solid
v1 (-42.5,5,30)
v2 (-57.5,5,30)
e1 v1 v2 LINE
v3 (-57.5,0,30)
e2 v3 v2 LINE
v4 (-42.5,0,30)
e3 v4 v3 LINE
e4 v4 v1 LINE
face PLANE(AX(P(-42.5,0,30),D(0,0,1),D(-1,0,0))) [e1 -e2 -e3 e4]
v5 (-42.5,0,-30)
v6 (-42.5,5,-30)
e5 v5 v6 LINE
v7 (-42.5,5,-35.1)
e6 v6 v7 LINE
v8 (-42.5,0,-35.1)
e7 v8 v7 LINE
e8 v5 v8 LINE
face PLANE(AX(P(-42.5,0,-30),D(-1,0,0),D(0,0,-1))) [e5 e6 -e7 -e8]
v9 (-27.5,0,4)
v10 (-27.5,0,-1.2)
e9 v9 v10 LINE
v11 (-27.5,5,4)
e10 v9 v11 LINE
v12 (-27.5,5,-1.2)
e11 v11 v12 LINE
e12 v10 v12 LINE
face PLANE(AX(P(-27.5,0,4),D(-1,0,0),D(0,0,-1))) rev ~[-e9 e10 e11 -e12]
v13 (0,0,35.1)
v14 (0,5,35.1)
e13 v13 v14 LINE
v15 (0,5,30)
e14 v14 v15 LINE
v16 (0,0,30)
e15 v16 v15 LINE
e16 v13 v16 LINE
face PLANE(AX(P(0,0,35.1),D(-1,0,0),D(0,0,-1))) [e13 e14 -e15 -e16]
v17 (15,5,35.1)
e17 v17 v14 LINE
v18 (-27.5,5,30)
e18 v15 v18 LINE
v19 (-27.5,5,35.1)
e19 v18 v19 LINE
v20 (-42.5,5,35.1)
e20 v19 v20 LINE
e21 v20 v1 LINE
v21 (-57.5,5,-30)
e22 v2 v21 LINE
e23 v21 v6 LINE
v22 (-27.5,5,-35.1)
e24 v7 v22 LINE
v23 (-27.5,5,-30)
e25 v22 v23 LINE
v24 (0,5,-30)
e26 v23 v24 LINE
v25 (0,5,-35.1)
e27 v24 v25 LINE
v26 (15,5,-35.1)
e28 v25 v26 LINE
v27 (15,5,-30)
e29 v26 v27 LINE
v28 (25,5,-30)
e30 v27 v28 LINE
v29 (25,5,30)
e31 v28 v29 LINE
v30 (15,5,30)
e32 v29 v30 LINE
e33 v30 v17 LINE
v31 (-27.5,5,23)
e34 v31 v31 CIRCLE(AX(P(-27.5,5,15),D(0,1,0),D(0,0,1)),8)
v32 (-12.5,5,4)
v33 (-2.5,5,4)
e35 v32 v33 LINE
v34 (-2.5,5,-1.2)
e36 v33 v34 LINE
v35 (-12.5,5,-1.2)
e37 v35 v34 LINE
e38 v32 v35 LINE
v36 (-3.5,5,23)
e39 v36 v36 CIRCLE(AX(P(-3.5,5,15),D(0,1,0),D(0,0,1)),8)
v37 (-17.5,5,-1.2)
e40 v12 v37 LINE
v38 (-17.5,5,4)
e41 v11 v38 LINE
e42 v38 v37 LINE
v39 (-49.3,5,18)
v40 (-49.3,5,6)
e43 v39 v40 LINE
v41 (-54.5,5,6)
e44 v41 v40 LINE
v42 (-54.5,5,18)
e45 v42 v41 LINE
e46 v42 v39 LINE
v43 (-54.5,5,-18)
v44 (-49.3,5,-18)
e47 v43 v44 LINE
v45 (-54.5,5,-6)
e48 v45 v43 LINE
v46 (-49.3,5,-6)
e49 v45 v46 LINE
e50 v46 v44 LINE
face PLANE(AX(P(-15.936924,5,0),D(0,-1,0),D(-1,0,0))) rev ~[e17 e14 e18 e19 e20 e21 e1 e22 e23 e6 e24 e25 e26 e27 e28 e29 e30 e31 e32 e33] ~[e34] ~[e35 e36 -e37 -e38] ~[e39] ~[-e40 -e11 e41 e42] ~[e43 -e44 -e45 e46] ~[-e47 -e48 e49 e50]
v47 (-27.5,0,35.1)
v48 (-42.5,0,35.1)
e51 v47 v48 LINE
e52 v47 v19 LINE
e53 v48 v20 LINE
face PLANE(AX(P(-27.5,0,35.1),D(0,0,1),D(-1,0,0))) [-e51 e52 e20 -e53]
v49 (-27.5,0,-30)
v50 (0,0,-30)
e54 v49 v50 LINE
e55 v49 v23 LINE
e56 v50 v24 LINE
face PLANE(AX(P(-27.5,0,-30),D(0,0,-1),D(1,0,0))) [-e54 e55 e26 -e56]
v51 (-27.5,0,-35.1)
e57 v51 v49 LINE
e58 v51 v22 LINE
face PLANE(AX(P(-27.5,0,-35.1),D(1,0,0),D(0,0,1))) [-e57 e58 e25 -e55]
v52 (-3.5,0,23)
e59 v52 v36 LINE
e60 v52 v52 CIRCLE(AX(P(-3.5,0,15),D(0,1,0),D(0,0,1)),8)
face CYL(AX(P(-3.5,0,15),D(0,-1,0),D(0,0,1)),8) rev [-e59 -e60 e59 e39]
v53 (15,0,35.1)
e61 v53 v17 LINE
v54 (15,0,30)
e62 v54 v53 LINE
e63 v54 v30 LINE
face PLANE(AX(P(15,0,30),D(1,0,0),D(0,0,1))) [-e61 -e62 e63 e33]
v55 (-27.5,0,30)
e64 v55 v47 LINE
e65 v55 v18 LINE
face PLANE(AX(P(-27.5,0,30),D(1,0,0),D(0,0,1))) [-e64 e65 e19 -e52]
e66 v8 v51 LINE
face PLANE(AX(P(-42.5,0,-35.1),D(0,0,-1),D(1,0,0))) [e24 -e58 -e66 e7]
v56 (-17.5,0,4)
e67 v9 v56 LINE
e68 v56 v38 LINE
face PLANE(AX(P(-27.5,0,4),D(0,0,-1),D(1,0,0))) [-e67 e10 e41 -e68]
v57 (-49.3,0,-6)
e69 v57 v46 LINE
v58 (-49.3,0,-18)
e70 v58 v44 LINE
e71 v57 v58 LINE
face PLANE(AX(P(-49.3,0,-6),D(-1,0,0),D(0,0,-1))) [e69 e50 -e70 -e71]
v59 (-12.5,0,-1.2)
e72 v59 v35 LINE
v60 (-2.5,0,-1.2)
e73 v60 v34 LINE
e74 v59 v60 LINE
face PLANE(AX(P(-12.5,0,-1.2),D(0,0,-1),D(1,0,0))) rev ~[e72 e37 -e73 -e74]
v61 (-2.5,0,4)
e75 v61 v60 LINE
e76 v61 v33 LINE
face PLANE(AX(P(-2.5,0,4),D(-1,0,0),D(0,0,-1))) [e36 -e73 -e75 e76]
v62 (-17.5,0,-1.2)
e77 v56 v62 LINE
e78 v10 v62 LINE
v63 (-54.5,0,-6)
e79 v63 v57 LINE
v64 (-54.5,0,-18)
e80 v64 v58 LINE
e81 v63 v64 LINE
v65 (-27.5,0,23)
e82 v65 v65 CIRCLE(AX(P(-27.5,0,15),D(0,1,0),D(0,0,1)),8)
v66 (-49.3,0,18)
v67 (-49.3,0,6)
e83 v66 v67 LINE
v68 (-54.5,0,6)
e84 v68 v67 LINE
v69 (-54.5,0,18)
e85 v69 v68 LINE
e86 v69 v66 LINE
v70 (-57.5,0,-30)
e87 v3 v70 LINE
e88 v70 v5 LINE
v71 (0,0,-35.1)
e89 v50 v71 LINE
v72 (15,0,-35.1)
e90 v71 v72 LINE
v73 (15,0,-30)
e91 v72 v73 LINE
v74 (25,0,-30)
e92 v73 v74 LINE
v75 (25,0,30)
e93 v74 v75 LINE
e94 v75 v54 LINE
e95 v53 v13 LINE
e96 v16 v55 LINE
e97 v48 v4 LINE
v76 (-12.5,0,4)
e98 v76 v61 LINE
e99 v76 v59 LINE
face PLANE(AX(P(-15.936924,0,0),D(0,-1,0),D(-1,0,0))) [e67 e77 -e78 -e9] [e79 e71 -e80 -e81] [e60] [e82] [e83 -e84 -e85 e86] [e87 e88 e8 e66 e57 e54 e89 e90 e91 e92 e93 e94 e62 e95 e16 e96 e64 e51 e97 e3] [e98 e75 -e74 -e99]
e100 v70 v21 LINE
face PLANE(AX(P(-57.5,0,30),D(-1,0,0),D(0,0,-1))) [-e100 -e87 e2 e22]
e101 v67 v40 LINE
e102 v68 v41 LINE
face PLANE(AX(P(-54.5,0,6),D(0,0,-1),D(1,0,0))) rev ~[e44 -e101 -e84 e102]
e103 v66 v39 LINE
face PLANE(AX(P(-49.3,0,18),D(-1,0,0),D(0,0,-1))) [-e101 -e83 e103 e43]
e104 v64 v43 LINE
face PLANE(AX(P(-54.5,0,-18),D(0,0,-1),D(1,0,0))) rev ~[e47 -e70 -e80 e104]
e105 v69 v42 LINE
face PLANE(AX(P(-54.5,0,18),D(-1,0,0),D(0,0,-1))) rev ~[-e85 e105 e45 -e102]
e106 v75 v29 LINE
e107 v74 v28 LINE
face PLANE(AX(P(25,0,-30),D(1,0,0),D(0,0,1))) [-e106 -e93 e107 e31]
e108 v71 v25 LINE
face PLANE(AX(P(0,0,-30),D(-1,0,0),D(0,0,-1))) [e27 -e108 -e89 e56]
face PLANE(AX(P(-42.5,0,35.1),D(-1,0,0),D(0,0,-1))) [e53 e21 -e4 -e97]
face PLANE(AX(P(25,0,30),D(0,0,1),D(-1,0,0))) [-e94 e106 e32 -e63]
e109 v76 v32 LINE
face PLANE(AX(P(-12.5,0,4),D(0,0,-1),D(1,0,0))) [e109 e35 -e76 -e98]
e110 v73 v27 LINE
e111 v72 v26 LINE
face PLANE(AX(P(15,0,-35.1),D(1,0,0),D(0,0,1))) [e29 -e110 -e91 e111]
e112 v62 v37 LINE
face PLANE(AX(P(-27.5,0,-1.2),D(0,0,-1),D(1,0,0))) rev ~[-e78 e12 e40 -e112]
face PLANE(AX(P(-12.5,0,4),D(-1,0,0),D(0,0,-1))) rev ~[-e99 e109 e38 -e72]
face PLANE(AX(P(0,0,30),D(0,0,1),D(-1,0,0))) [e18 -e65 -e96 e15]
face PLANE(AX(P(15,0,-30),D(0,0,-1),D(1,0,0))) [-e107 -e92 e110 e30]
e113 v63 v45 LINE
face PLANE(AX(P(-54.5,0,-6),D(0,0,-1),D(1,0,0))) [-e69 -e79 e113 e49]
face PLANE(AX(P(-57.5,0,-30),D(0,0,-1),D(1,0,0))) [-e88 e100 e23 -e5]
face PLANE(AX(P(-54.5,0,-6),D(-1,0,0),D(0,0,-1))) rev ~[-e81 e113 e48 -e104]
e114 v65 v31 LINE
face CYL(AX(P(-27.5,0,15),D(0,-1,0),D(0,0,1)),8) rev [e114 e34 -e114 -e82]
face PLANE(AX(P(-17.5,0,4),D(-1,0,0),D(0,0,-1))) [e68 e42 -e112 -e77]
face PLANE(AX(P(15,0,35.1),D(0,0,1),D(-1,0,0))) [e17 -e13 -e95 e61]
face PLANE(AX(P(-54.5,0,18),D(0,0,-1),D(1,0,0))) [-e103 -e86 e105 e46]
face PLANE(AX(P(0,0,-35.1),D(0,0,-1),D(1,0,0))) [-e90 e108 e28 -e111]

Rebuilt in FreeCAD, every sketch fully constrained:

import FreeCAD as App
import Part
import Sketcher
from FreeCAD import Vector
Q = App.Units.Quantity

doc = App.newDocument("Part")
params = doc.addObject("Spreadsheet::Sheet", "Params")
for row, (alias, value) in enumerate([
    ("sketch1_diameter", "16 mm"),
    ("sketch1_width", "10 mm"),
    ("sketch1_width2", "15 mm"),
    ("sketch1_height", "60 mm"),
    ("sketch1_height2", "12 mm"),
    ("pad1_length", "5 mm"),
], start=1):
    params.set(f"A{row}", alias)
    params.set(f"B{row}", "=" + value)
    params.setAlias(f"B{row}", alias)

body = doc.addObject("PartDesign::Body", "Body")

sketch1 = body.newObject("Sketcher::SketchObject", "Sketch")
sketch1.AttachmentSupport = (doc.getObject("XZ_Plane"), [""])
sketch1.MapMode = "FlatFace"
sketch1.addGeometry([
    Part.LineSegment(Vector(25, 30, 0), Vector(25, -30, 0)),
    Part.LineSegment(Vector(25, -30, 0), Vector(15, -30, 0)),
    Part.LineSegment(Vector(15, -30, 0), Vector(15, -35, 0)),
    Part.LineSegment(Vector(15, -35, 0), Vector(0, -35, 0)),
    Part.LineSegment(Vector(0, -35, 0), Vector(0, -30, 0)),
    Part.LineSegment(Vector(0, -30, 0), Vector(-28, -30, 0)),
    Part.LineSegment(Vector(-28, -30, 0), Vector(-28, -35, 0)),
    Part.LineSegment(Vector(-28, -35, 0), Vector(-42, -35, 0)),
    Part.LineSegment(Vector(-42, -35, 0), Vector(-42, -30, 0)),
    Part.LineSegment(Vector(-42, -30, 0), Vector(-58, -30, 0)),
    Part.LineSegment(Vector(-58, -30, 0), Vector(-58, 30, 0)),
    Part.LineSegment(Vector(-58, 30, 0), Vector(-42, 30, 0)),
    Part.LineSegment(Vector(-42, 30, 0), Vector(-42, 35, 0)),
    Part.LineSegment(Vector(-42, 35, 0), Vector(-28, 35, 0)),
    Part.LineSegment(Vector(-28, 35, 0), Vector(-28, 30, 0)),
    Part.LineSegment(Vector(-28, 30, 0), Vector(0, 30, 0)),
    Part.LineSegment(Vector(0, 30, 0), Vector(0, 35, 0)),
    Part.LineSegment(Vector(0, 35, 0), Vector(15, 35, 0)),
    Part.LineSegment(Vector(15, 35, 0), Vector(15, 30, 0)),
    Part.LineSegment(Vector(15, 30, 0), Vector(25, 30, 0)),
    Part.Circle(Vector(-4, 15, 0), Vector(0, 0, 1), 8),
    Part.Circle(Vector(-28, 15, 0), Vector(0, 0, 1), 8),
    Part.LineSegment(Vector(-54, 18, 0), Vector(-54, 6, 0)),
    Part.LineSegment(Vector(-54, 6, 0), Vector(-49, 6, 0)),
    Part.LineSegment(Vector(-49, 6, 0), Vector(-49, 18, 0)),
    Part.LineSegment(Vector(-49, 18, 0), Vector(-54, 18, 0)),
    Part.LineSegment(Vector(-12, 4, 0), Vector(-12, -1, 0)),
    Part.LineSegment(Vector(-12, -1, 0), Vector(-2, -1, 0)),
    Part.LineSegment(Vector(-2, -1, 0), Vector(-2, 4, 0)),
    Part.LineSegment(Vector(-2, 4, 0), Vector(-12, 4, 0)),
    Part.LineSegment(Vector(-28, 4, 0), Vector(-28, -1, 0)),
    Part.LineSegment(Vector(-28, -1, 0), Vector(-18, -1, 0)),
    Part.LineSegment(Vector(-18, -1, 0), Vector(-18, 4, 0)),
    Part.LineSegment(Vector(-18, 4, 0), Vector(-28, 4, 0)),
    Part.LineSegment(Vector(-54, -6, 0), Vector(-54, -18, 0)),
    Part.LineSegment(Vector(-54, -18, 0), Vector(-49, -18, 0)),
    Part.LineSegment(Vector(-49, -18, 0), Vector(-49, -6, 0)),
    Part.LineSegment(Vector(-49, -6, 0), Vector(-54, -6, 0)),
], False)
sketch1.addConstraint([
    Sketcher.Constraint("Coincident", 0, 2, 1, 1),
    Sketcher.Constraint("Coincident", 1, 2, 2, 1),
    Sketcher.Constraint("Coincident", 2, 2, 3, 1),
    Sketcher.Constraint("Coincident", 3, 2, 4, 1),
    Sketcher.Constraint("Coincident", 4, 2, 5, 1),
    Sketcher.Constraint("Coincident", 5, 2, 6, 1),
    Sketcher.Constraint("Coincident", 6, 2, 7, 1),
    Sketcher.Constraint("Coincident", 7, 2, 8, 1),
    Sketcher.Constraint("Coincident", 8, 2, 9, 1),
    Sketcher.Constraint("Coincident", 9, 2, 10, 1),
    Sketcher.Constraint("Coincident", 10, 2, 11, 1),
    Sketcher.Constraint("Coincident", 11, 2, 12, 1),
    Sketcher.Constraint("Coincident", 12, 2, 13, 1),
    Sketcher.Constraint("Coincident", 13, 2, 14, 1),
    Sketcher.Constraint("Coincident", 14, 2, 15, 1),
    Sketcher.Constraint("Coincident", 15, 2, 16, 1),
    Sketcher.Constraint("Coincident", 16, 2, 17, 1),
    Sketcher.Constraint("Coincident", 17, 2, 18, 1),
    Sketcher.Constraint("Coincident", 18, 2, 19, 1),
    Sketcher.Constraint("Coincident", 19, 2, 0, 1),
    Sketcher.Constraint("Coincident", 22, 2, 23, 1),
    Sketcher.Constraint("Coincident", 23, 2, 24, 1),
    Sketcher.Constraint("Coincident", 24, 2, 25, 1),
    Sketcher.Constraint("Coincident", 25, 2, 22, 1),
    Sketcher.Constraint("Coincident", 26, 2, 27, 1),
    Sketcher.Constraint("Coincident", 27, 2, 28, 1),
    Sketcher.Constraint("Coincident", 28, 2, 29, 1),
    Sketcher.Constraint("Coincident", 29, 2, 26, 1),
    Sketcher.Constraint("Coincident", 30, 2, 31, 1),
    Sketcher.Constraint("Coincident", 31, 2, 32, 1),
    Sketcher.Constraint("Coincident", 32, 2, 33, 1),
    Sketcher.Constraint("Coincident", 33, 2, 30, 1),
    Sketcher.Constraint("Coincident", 34, 2, 35, 1),
    Sketcher.Constraint("Coincident", 35, 2, 36, 1),
    Sketcher.Constraint("Coincident", 36, 2, 37, 1),
    Sketcher.Constraint("Coincident", 37, 2, 34, 1),
    Sketcher.Constraint("Vertical", 0),
    Sketcher.Constraint("Horizontal", 1),
    Sketcher.Constraint("Vertical", 2),
    Sketcher.Constraint("Horizontal", 3),
    Sketcher.Constraint("Vertical", 4),
    Sketcher.Constraint("Horizontal", 5),
    Sketcher.Constraint("Vertical", 6),
    Sketcher.Constraint("Horizontal", 7),
    Sketcher.Constraint("Vertical", 8),
    Sketcher.Constraint("Horizontal", 9),
    Sketcher.Constraint("Vertical", 10),
    Sketcher.Constraint("Horizontal", 11),
    Sketcher.Constraint("Vertical", 12),
    Sketcher.Constraint("Horizontal", 13),
    Sketcher.Constraint("Vertical", 14),
    Sketcher.Constraint("Horizontal", 15),
    Sketcher.Constraint("Vertical", 16),
    Sketcher.Constraint("Horizontal", 17),
    Sketcher.Constraint("Vertical", 18),
    Sketcher.Constraint("Horizontal", 19),
    Sketcher.Constraint("Vertical", 22),
    Sketcher.Constraint("Horizontal", 23),
    Sketcher.Constraint("Vertical", 24),
    Sketcher.Constraint("Horizontal", 25),
    Sketcher.Constraint("Vertical", 26),
    Sketcher.Constraint("Horizontal", 27),
    Sketcher.Constraint("Vertical", 28),
    Sketcher.Constraint("Horizontal", 29),
    Sketcher.Constraint("Vertical", 30),
    Sketcher.Constraint("Horizontal", 31),
    Sketcher.Constraint("Vertical", 32),
    Sketcher.Constraint("Horizontal", 33),
    Sketcher.Constraint("Vertical", 34),
    Sketcher.Constraint("Horizontal", 35),
    Sketcher.Constraint("Vertical", 36),
    Sketcher.Constraint("Horizontal", 37),
    Sketcher.Constraint("Equal", 20, 21),
    Sketcher.Constraint("Symmetric", 4, 2, 15, 2, -1, 1),
    Sketcher.Constraint("Symmetric", 8, 2, 11, 2, -1),
    Sketcher.Constraint("Symmetric", 6, 2, 13, 2, -1),
    Sketcher.Constraint("Symmetric", 3, 2, 16, 2, -1),
    Sketcher.Constraint("Symmetric", 1, 2, 18, 2, -1),
    Sketcher.Constraint("Symmetric", 25, 2, 34, 2, -1),
    Sketcher.Constraint("Symmetric", 23, 2, 36, 2, -1),
    Sketcher.Constraint("Horizontal", 20, 3, 21, 3),
    Sketcher.Constraint("Horizontal", 1, 2, 4, 2),
    Sketcher.Constraint("Horizontal", 3, 2, 6, 2),
    Sketcher.Constraint("Horizontal", 5, 2, 8, 2),
    Sketcher.Constraint("Horizontal", 27, 2, 30, 2),
    Sketcher.Constraint("Horizontal", 29, 2, 32, 2),
    Sketcher.Constraint("Vertical", 21, 3, 5, 2),
    Sketcher.Constraint("Vertical", 14, 2, 30, 2),
    Sketcher.Constraint("Equal", 3, 7),
    Sketcher.Constraint("Equal", 7, 9),
    Sketcher.Constraint("Equal", 19, 27),
    Sketcher.Constraint("Equal", 29, 31),
    Sketcher.Constraint("Equal", 37, 26),
    Sketcher.Constraint("Diameter", 20, Q("16 mm")),
    Sketcher.Constraint("DistanceX", 1, 2, 1, 1, Q("10 mm")),
    Sketcher.Constraint("DistanceX", 3, 2, 3, 1, Q("15 mm")),
    Sketcher.Constraint("DistanceY", 0, 2, 0, 1, Q("60 mm")),
    Sketcher.Constraint("DistanceY", 22, 2, 22, 1, Q("12 mm")),
    Sketcher.Constraint("DistanceX", 5, 2, 5, 1, Q("27.5 mm")),
    Sketcher.Constraint("DistanceX", 23, 1, 23, 2, Q("5.2 mm")),
    Sketcher.Constraint("DistanceY", 2, 2, 2, 1, Q("5.1 mm")),
    Sketcher.Constraint("DistanceY", -1, 1, 20, 3, Q("15 mm")),
    Sketcher.Constraint("DistanceY", -1, 1, 22, 2, Q("6 mm")),
    Sketcher.Constraint("DistanceY", -1, 1, 28, 2, Q("4 mm")),
    Sketcher.Constraint("DistanceX", 21, 3, 20, 3, Q("24 mm")),
    Sketcher.Constraint("DistanceX", 10, 2, 22, 2, Q("3 mm")),
    Sketcher.Constraint("DistanceX", 26, 2, 20, 3, Q("9 mm")),
])
sketch1.setExpression("Constraints[93]", "Params.sketch1_diameter")
sketch1.setExpression("Constraints[94]", "Params.sketch1_width")
sketch1.setExpression("Constraints[95]", "Params.sketch1_width2")
sketch1.setExpression("Constraints[96]", "Params.sketch1_height")
sketch1.setExpression("Constraints[97]", "Params.sketch1_height2")
pad1 = body.newObject("PartDesign::Pad", "Pad")
pad1.Profile = sketch1
pad1.setExpression("Length", "Params.pad1_length")
pad1.Reversed = True

doc.recompute()
